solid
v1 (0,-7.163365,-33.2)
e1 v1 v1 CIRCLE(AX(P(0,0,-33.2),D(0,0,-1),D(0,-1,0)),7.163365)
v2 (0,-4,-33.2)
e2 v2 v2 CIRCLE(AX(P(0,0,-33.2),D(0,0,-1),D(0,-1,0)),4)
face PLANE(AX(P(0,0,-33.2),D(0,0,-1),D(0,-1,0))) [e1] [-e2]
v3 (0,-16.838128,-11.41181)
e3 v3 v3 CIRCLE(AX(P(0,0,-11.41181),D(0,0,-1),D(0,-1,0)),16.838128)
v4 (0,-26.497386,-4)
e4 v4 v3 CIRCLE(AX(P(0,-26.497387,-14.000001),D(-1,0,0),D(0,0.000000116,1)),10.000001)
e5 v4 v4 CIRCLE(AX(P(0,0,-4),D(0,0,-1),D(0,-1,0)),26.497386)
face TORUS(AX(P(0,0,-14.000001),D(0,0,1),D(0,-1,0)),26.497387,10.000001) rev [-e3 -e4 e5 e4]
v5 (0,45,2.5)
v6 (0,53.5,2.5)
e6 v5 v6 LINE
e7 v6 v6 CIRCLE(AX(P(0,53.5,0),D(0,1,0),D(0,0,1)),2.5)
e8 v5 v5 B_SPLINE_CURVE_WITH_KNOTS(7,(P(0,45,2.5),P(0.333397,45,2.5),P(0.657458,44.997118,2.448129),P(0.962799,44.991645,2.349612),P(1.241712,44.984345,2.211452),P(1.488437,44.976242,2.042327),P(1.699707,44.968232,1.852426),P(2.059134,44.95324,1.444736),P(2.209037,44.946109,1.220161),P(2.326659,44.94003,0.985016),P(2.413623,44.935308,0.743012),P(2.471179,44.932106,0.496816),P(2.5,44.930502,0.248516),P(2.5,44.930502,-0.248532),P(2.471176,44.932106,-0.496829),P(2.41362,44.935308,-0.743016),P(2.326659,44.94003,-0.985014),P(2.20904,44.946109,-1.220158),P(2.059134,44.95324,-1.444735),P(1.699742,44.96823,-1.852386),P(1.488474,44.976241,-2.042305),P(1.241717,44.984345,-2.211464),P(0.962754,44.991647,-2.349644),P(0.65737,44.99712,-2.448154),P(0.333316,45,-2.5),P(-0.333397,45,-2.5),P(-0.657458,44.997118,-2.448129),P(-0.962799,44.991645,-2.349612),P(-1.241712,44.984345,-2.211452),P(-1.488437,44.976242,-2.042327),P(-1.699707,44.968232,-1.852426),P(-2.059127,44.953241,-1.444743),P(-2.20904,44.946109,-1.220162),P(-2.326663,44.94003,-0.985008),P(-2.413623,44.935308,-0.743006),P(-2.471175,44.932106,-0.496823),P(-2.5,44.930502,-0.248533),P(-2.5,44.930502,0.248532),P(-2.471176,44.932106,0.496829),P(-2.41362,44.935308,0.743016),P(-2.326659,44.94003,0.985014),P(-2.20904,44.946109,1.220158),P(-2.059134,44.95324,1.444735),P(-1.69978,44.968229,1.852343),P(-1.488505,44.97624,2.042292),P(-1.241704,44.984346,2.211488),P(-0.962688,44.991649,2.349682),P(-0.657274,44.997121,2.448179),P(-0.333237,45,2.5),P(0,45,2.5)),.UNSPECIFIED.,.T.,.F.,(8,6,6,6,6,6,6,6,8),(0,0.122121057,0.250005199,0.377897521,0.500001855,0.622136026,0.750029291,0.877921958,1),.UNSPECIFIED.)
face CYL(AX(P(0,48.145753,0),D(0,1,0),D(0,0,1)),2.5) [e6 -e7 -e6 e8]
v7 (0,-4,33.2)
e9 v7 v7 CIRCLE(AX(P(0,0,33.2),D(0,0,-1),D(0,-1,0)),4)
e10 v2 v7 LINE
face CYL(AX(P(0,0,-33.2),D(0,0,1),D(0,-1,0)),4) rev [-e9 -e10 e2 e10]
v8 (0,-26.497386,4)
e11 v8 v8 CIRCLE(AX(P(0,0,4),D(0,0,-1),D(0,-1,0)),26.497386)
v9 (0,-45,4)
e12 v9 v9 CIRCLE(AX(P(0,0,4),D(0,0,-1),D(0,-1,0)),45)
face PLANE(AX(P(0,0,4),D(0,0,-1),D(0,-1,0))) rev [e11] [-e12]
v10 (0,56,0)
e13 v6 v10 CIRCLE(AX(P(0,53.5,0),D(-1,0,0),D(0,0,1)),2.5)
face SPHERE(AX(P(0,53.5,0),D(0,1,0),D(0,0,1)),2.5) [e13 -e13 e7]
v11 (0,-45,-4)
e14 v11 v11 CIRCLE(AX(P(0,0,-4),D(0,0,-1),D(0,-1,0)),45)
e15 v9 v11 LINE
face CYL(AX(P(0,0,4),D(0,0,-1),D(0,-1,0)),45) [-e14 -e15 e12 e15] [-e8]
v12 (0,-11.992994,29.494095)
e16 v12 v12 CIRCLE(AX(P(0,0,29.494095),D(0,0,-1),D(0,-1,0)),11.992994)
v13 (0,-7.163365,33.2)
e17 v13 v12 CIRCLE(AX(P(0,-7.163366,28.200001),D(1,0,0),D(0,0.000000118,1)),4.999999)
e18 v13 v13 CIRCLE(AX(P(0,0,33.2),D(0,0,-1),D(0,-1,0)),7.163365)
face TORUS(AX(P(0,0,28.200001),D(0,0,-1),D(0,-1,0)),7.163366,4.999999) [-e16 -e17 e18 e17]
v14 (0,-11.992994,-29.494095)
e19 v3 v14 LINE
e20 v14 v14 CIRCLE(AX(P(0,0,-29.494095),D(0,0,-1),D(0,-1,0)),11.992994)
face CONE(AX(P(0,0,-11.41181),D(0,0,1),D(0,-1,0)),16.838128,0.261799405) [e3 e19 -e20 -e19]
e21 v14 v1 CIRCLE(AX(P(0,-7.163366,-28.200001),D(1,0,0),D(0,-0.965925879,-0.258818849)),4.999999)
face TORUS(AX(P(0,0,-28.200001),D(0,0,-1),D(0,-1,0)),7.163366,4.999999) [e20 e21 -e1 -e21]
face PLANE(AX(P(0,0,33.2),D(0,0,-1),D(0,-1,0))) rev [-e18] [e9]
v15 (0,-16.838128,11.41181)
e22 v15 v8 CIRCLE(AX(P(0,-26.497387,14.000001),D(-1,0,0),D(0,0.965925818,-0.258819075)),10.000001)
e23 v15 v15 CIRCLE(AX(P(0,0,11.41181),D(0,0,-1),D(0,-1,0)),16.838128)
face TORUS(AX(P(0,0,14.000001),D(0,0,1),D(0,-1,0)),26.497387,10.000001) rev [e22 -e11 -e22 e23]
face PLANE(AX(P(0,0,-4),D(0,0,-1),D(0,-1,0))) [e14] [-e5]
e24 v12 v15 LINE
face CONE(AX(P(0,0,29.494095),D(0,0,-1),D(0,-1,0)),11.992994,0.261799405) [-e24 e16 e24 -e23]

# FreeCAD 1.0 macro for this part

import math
import FreeCAD as App
import Part
import Sketcher

V = App.Vector
Q = App.Units.Quantity


def edges_at(feature, points):
    """Names of the edges that pass closest to the given points."""
    edges = feature.Shape.Edges
    near = lambda p: min(range(len(edges)), key=lambda i: edges[i].distToShape(Part.Vertex(*p))[0])
    return sorted({f"Edge{near(p) + 1}" for p in points})


def add_polygon(sketch, points):
    """Adds a closed chain of lines whose ends are joined by coincident constraints."""
    first, n = sketch.GeometryCount, len(points)
    for a, b in zip(points, points[1:] + points[:1]):
        sketch.addGeometry(Part.LineSegment(App.Vector(*a, 0), App.Vector(*b, 0)), False)
    for i in range(n):
        sketch.addConstraint(Sketcher.Constraint("Coincident", first + i, 2, first + (i + 1) % n, 1))

doc = App.newDocument("Part")
body = doc.addObject("PartDesign::Body", "Body")

sketch1 = body.newObject("Sketcher::SketchObject", "Sketch")
sketch1.AttachmentSupport = (doc.getObject("YZ_Plane"), [""])
sketch1.MapMode = "FlatFace"
sketch1.addGeometry([
    Part.LineSegment(V(-45, 4, 0), V(-45, -4, 0)),
    Part.LineSegment(V(-45, -4, 0), V(-26.5, -4, 0)),
    Part.ArcOfCircle(Part.Circle(V(-26.5, -14, 0), V(0, 0, 1), 10), math.radians(15), math.radians(90)),
    Part.LineSegment(V(-16.8, -11.4, 0), V(-12, -29.5, 0)),
    Part.ArcOfCircle(Part.Circle(V(-7.2, -28.2, 0), V(0, 0, 1), 5), math.radians(-165), math.radians(-90)),
    Part.LineSegment(V(-7.2, -33.2, 0), V(-4, -33.2, 0)),
    Part.LineSegment(V(-4, -33.2, 0), V(-4, 33.2, 0)),
    Part.LineSegment(V(-4, 33.2, 0), V(-7.2, 33.2, 0)),
    Part.ArcOfCircle(Part.Circle(V(-7.2, 28.2, 0), V(0, 0, 1), 5), math.radians(90), math.radians(165)),
    Part.LineSegment(V(-12, 29.5, 0), V(-16.8, 11.4, 0)),
    Part.ArcOfCircle(Part.Circle(V(-26.5, 14, 0), V(0, 0, 1), 10), math.radians(-90), math.radians(-15)),
    Part.LineSegment(V(-26.5, 4, 0), V(-45, 4, 0)),
], False)
sketch1.addConstraint([
    Sketcher.Constraint("Coincident", 0, 2, 1, 1),
    Sketcher.Constraint("Tangent", 1, 2, 2, 2),
    Sketcher.Constraint("Tangent", 2, 1, 3, 1),
    Sketcher.Constraint("Tangent", 3, 2, 4, 1),
    Sketcher.Constraint("Tangent", 4, 2, 5, 1),
    Sketcher.Constraint("Coincident", 5, 2, 6, 1),
    Sketcher.Constraint("Coincident", 6, 2, 7, 1),
    Sketcher.Constraint("Tangent", 7, 2, 8, 1),
    Sketcher.Constraint("Tangent", 8, 2, 9, 1),
    Sketcher.Constraint("Tangent", 9, 2, 10, 2),
    Sketcher.Constraint("Tangent", 10, 1, 11, 1),
    Sketcher.Constraint("Coincident", 11, 2, 0, 1),
    Sketcher.Constraint("Vertical", 0),
    Sketcher.Constraint("Horizontal", 1),
    Sketcher.Constraint("Horizontal", 5),
    Sketcher.Constraint("Vertical", 6),
    Sketcher.Constraint("Horizontal", 7),
    Sketcher.Constraint("Horizontal", 11),
    Sketcher.Constraint("Equal", 4, 8),
    Sketcher.Constraint("Equal", 2, 10),
    Sketcher.Constraint("Symmetric", 4, 3, 8, 3, -1),
    Sketcher.Constraint("Symmetric", 2, 3, 10, 3, -1),
    Sketcher.Constraint("Radius", 2, 10.000001),
    Sketcher.Constraint("Radius", 4, 4.999999),
    Sketcher.Constraint("DistanceY", 0, 2, 0, 1, 8.0),
    Sketcher.Constraint("Angle", 3, Q("-74.999999 deg")),
    Sketcher.Constraint("DistanceY", 6, 1, 6, 2, 66.4),
    Sketcher.Constraint("DistanceX", 0, 2, -1, 1, 45.0),
    Sketcher.Constraint("DistanceX", 5, 2, -1, 1, 4.0),
    Sketcher.Constraint("DistanceX", 1, 1, 1, 2, 18.502614),
])
revolution = body.newObject("PartDesign::Revolution", "Revolution")
revolution.Profile = sketch1
revolution.ReferenceAxis = (sketch1, ["V_Axis"])
revolution.Angle = 360

sketch2 = body.newObject("Sketcher::SketchObject", "Sketch001")
sketch2.AttachmentSupport = (doc.getObject("YZ_Plane"), [""])
sketch2.MapMode = "FlatFace"
add_polygon(sketch2, [(40.3, 2.5), (40.3, 0), (56, 0), (56, 2.5)])
sketch2.addConstraint([
    Sketcher.Constraint("Vertical", 0),
    Sketcher.Constraint("Horizontal", 1),
    Sketcher.Constraint("Vertical", 2),
    Sketcher.Constraint("Horizontal", 3),
    Sketcher.Constraint("PointOnObject", 0, 2, -1),
    Sketcher.Constraint("DistanceY", 0, 2, 0, 1, 2.5),
    Sketcher.Constraint("DistanceX", -1, 1, 1, 2, 56.0),
    Sketcher.Constraint("DistanceX", 1, 1, 1, 2, 15.708493),
])
revolution2 = body.newObject("PartDesign::Revolution", "Revolution001")
revolution2.Profile = sketch2
revolution2.ReferenceAxis = (sketch2, ["H_Axis"])
revolution2.Angle = 360
doc.recompute()

fillet = body.newObject("PartDesign::Fillet", "Fillet")
fillet.Base = (revolution2, edges_at(revolution2, [(0, 56, -2.5)]))
fillet.Radius = 2.5

doc.recompute()
